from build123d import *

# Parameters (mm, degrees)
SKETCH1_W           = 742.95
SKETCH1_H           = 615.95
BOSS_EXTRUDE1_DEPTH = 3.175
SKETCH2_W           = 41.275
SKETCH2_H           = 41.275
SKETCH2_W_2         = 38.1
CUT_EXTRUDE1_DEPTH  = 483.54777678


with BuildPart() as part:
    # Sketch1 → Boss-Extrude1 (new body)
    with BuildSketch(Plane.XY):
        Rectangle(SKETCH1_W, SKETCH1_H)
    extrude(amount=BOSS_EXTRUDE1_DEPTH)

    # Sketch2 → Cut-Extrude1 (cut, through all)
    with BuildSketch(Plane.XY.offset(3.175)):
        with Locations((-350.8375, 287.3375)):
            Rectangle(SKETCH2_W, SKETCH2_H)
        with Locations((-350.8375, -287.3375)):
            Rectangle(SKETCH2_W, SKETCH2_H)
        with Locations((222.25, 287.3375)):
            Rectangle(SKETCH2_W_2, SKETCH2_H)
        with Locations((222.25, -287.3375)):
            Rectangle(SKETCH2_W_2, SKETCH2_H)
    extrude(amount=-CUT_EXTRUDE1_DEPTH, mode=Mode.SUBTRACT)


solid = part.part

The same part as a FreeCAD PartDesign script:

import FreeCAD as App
import Part
import Sketcher

V = App.Vector
Q = App.Units.Quantity

doc = App.newDocument("Part")
params = doc.addObject("Spreadsheet::Sheet", "Params")
for row, (alias, value) in enumerate([
    ("sketch1_width", "29.25 in"),
    ("sketch1_height", "24.25 in"),
    ("pad1_length", "0.125 in"),
    ("sketch2_width", "1.5 in"),
    ("sketch2_width2", "1.625 in"),
], start=1):
    params.set(f"A{row}", alias)
    params.set(f"B{row}", "=" + value)
    params.setAlias(f"B{row}", alias)

body = doc.addObject("PartDesign::Body", "Body")

# Sketch on XY plane
sketch1 = body.newObject("Sketcher::SketchObject", "Sketch")
sketch1.AttachmentSupport = (doc.getObject("XY_Plane"), [""])
sketch1.MapMode = "FlatFace"
sketch1.addGeometry(Part.LineSegment(V(-371, 308, 0), V(-371, -308, 0)), False)
sketch1.addGeometry(Part.LineSegment(V(-371, -308, 0), V(371, -308, 0)), False)
sketch1.addGeometry(Part.LineSegment(V(371, -308, 0), V(371, 308, 0)), False)
sketch1.addGeometry(Part.LineSegment(V(371, 308, 0), V(-371, 308, 0)), False)
sketch1.addConstraint(Sketcher.Constraint("Coincident", 0, 2, 1, 1))
sketch1.addConstraint(Sketcher.Constraint("Coincident", 1, 2, 2, 1))
sketch1.addConstraint(Sketcher.Constraint("Coincident", 2, 2, 3, 1))
sketch1.addConstraint(Sketcher.Constraint("Coincident", 3, 2, 0, 1))
sketch1.addConstraint(Sketcher.Constraint("Vertical", 0))
sketch1.addConstraint(Sketcher.Constraint("Horizontal", 1))
sketch1.addConstraint(Sketcher.Constraint("Vertical", 2))
sketch1.addConstraint(Sketcher.Constraint("Horizontal", 3))
sketch1.addConstraint(Sketcher.Constraint("Symmetric", 0, 2, 2, 2, -1, 1))
sketch1.addConstraint(Sketcher.Constraint("DistanceX", 1, 1, 1, 2, Q("29.25 in")))
sketch1.addConstraint(Sketcher.Constraint("DistanceY", 0, 2, 0, 1, Q("24.25 in")))
sketch1.setExpression("Constraints[9]", "Params.sketch1_width")
sketch1.setExpression("Constraints[10]", "Params.sketch1_height")
pad1 = body.newObject("PartDesign::Pad", "Pad")
pad1.Profile = sketch1
pad1.setExpression("Length", "Params.pad1_length")

# Sketch on XY plane
sketch2 = body.newObject("Sketcher::SketchObject", "Sketch001")
sketch2.AttachmentSupport = (doc.getObject("XY_Plane"), [""])
sketch2.MapMode = "FlatFace"
sketch2.AttachmentOffset = App.Placement(V(0, 0, 0.125 * 25.4), App.Rotation())
sketch2.addGeometry(Part.LineSegment(V(-371, 308, 0), V(-371, 267, 0)), False)
sketch2.addGeometry(Part.LineSegment(V(-371, 267, 0), V(-330, 267, 0)), False)
sketch2.addGeometry(Part.LineSegment(V(-330, 267, 0), V(-330, 308, 0)), False)
sketch2.addGeometry(Part.LineSegment(V(-330, 308, 0), V(-371, 308, 0)), False)
sketch2.addGeometry(Part.LineSegment(V(-371, -267, 0), V(-371, -308, 0)), False)
sketch2.addGeometry(Part.LineSegment(V(-371, -308, 0), V(-330, -308, 0)), False)
sketch2.addGeometry(Part.LineSegment(V(-330, -308, 0), V(-330, -267, 0)), False)
sketch2.addGeometry(Part.LineSegment(V(-330, -267, 0), V(-371, -267, 0)), False)
sketch2.addGeometry(Part.LineSegment(V(203, 308, 0), V(203, 267, 0)), False)
sketch2.addGeometry(Part.LineSegment(V(203, 267, 0), V(241, 267, 0)), False)
sketch2.addGeometry(Part.LineSegment(V(241, 267, 0), V(241, 308, 0)), False)
sketch2.addGeometry(Part.LineSegment(V(241, 308, 0), V(203, 308, 0)), False)
sketch2.addGeometry(Part.LineSegment(V(203, -267, 0), V(203, -308, 0)), False)
sketch2.addGeometry(Part.LineSegment(V(203, -308, 0), V(241, -308, 0)), False)
sketch2.addGeometry(Part.LineSegment(V(241, -308, 0), V(241, -267, 0)), False)
sketch2.addGeometry(Part.LineSegment(V(241, -267, 0), V(203, -267, 0)), False)
sketch2.addConstraint(Sketcher.Constraint("Coincident", 0, 2, 1, 1))
sketch2.addConstraint(Sketcher.Constraint("Coincident", 1, 2, 2, 1))
sketch2.addConstraint(Sketcher.Constraint("Coincident", 2, 2, 3, 1))
sketch2.addConstraint(Sketcher.Constraint("Coincident", 3, 2, 0, 1))
sketch2.addConstraint(Sketcher.Constraint("Coincident", 4, 2, 5, 1))
sketch2.addConstraint(Sketcher.Constraint("Coincident", 5, 2, 6, 1))
sketch2.addConstraint(Sketcher.Constraint("Coincident", 6, 2, 7, 1))
sketch2.addConstraint(Sketcher.Constraint("Coincident", 7, 2, 4, 1))
sketch2.addConstraint(Sketcher.Constraint("Coincident", 8, 2, 9, 1))
sketch2.addConstraint(Sketcher.Constraint("Coincident", 9, 2, 10, 1))
sketch2.addConstraint(Sketcher.Constraint("Coincident", 10, 2, 11, 1))
sketch2.addConstraint(Sketcher.Constraint("Coincident", 11, 2, 8, 1))
sketch2.addConstraint(Sketcher.Constraint("Coincident", 12, 2, 13, 1))
sketch2.addConstraint(Sketcher.Constraint("Coincident", 13, 2, 14, 1))
sketch2.addConstraint(Sketcher.Constraint("Coincident", 14, 2, 15, 1))
sketch2.addConstraint(Sketcher.Constraint("Coincident", 15, 2, 12, 1))
sketch2.addConstraint(Sketcher.Constraint("Vertical", 0))
sketch2.addConstraint(Sketcher.Constraint("Horizontal", 1))
sketch2.addConstraint(Sketcher.Constraint("Vertical", 2))
sketch2.addConstraint(Sketcher.Constraint("Horizontal", 3))
sketch2.addConstraint(Sketcher.Constraint("Vertical", 4))
sketch2.addConstraint(Sketcher.Constraint("Horizontal", 5))
sketch2.addConstraint(Sketcher.Constraint("Vertical", 6))
sketch2.addConstraint(Sketcher.Constraint("Horizontal", 7))
sketch2.addConstraint(Sketcher.Constraint("Vertical", 8))
sketch2.addConstraint(Sketcher.Constraint("Horizontal", 9))
sketch2.addConstraint(Sketcher.Constraint("Vertical", 10))
sketch2.addConstraint(Sketcher.Constraint("Horizontal", 11))
sketch2.addConstraint(Sketcher.Constraint("Vertical", 12))
sketch2.addConstraint(Sketcher.Constraint("Horizontal", 13))
sketch2.addConstraint(Sketcher.Constraint("Vertical", 14))
sketch2.addConstraint(Sketcher.Constraint("Horizontal", 15))
sketch2.addConstraint(Sketcher.Constraint("Symmetric", 3, 2, 4, 2, -1))
sketch2.addConstraint(Sketcher.Constraint("Symmetric", 1, 2, 6, 2, -1))
sketch2.addConstraint(Sketcher.Constraint("Symmetric", 11, 2, 12, 2, -1))
sketch2.addConstraint(Sketcher.Constraint("Symmetric", 9, 2, 14, 2, -1))
sketch2.addConstraint(Sketcher.Constraint("Horizontal", 1, 2, 8, 2))
sketch2.addConstraint(Sketcher.Constraint("Horizontal", 3, 2, 10, 2))
sketch2.addConstraint(Sketcher.Constraint("Equal", 7, 0))
sketch2.addConstraint(Sketcher.Constraint("DistanceX", 9, 1, 9, 2, Q("1.5 in")))
sketch2.addConstraint(Sketcher.Constraint("DistanceX", 1, 2, -1, 1, Q("13 in")))
sketch2.addConstraint(Sketcher.Constraint("DistanceX", -1, 1, 8, 2, Q("8 in")))
sketch2.addConstraint(Sketcher.Constraint("DistanceY", 6, 2, 1, 2, Q("21 in")))
sketch2.addConstraint(Sketcher.Constraint("DistanceX", 1, 1, 1, 2, Q("1.625 in")))
sketch2.setExpression("Constraints[39]", "Params.sketch2_width")
sketch2.setExpression("Constraints[43]", "Params.sketch2_width2")
pocket1 = body.newObject("PartDesign::Pocket", "Pocket")
pocket1.Profile = sketch2
pocket1.Type = "ThroughAll"

doc.recompute()
